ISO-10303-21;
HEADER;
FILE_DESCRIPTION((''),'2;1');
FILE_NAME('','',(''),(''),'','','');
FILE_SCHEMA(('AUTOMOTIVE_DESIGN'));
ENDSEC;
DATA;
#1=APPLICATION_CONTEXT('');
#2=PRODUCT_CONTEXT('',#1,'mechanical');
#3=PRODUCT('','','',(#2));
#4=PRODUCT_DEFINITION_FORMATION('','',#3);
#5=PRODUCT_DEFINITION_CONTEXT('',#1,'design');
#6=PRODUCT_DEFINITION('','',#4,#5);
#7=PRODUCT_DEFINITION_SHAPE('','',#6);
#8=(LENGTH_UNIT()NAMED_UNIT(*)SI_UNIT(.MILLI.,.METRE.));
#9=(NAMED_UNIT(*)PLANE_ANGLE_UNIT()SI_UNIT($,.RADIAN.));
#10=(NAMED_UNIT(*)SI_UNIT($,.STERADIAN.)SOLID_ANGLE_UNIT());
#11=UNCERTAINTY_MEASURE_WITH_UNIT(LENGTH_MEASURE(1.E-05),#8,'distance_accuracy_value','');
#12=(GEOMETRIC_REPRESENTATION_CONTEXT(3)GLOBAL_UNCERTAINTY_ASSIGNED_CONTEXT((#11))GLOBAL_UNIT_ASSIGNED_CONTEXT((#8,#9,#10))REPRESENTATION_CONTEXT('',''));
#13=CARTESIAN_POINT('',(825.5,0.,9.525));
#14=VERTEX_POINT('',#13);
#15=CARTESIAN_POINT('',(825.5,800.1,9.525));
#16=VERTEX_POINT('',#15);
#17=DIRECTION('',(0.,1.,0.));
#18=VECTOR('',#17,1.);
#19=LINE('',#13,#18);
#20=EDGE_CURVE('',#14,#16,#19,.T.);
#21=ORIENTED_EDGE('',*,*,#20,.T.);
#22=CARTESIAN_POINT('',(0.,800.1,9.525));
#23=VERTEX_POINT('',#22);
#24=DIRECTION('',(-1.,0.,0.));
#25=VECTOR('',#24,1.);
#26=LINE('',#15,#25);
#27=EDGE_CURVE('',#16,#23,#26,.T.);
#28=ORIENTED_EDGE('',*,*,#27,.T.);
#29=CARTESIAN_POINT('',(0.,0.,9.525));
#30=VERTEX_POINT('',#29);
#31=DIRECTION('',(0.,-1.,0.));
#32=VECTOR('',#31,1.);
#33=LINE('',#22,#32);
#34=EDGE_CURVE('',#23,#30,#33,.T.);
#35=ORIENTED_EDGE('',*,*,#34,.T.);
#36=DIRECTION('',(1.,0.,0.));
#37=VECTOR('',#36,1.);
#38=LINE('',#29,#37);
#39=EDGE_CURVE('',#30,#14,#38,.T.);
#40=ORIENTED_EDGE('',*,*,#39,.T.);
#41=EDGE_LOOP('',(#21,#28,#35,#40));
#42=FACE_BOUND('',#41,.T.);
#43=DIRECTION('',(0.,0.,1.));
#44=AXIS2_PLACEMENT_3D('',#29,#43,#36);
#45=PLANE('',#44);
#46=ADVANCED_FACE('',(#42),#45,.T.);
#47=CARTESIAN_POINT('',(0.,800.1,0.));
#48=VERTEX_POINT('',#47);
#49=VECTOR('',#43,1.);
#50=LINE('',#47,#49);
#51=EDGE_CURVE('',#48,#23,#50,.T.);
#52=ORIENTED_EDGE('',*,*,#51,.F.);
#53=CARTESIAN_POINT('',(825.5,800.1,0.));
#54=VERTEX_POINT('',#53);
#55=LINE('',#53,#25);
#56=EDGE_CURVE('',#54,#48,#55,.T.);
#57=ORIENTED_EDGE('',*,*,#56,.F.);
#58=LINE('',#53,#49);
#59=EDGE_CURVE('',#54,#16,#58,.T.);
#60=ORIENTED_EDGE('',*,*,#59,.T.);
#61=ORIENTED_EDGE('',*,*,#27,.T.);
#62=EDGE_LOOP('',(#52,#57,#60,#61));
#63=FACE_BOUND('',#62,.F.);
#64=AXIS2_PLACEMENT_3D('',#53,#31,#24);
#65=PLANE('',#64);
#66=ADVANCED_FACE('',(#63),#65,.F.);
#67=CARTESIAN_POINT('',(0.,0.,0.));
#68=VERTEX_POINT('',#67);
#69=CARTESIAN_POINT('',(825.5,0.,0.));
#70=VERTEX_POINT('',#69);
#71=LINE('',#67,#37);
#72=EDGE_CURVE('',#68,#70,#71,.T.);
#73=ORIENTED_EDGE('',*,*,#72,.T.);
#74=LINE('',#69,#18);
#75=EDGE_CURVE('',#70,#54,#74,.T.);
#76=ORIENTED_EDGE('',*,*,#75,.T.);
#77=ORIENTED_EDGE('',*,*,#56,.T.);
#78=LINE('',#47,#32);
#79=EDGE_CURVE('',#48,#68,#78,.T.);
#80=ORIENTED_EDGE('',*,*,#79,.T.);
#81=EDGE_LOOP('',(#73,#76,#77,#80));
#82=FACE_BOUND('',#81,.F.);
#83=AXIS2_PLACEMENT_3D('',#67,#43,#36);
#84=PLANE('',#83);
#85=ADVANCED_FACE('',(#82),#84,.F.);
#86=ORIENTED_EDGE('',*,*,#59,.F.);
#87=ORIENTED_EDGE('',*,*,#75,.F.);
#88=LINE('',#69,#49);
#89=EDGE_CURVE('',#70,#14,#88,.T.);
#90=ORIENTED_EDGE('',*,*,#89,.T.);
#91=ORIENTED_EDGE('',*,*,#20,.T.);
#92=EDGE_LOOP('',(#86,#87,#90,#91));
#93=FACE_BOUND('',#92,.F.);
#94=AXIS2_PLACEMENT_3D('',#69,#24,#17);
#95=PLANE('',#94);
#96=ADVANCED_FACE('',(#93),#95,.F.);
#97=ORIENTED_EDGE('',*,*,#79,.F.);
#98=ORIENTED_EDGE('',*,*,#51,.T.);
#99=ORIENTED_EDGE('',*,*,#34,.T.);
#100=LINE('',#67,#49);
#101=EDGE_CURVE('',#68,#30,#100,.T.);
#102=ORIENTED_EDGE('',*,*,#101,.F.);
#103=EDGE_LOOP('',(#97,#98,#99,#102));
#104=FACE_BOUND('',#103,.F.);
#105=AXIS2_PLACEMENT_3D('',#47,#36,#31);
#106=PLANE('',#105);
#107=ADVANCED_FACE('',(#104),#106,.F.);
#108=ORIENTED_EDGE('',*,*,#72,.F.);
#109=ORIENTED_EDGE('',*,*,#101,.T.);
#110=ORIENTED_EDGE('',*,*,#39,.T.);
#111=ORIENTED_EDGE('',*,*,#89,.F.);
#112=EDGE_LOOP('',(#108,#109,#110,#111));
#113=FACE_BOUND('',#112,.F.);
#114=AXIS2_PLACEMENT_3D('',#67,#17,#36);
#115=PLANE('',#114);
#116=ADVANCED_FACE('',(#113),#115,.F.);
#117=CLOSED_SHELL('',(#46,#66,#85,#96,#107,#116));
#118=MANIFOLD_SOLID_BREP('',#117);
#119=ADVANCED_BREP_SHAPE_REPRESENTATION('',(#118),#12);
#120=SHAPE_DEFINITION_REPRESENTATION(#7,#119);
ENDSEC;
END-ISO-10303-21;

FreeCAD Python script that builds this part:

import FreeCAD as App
import Part
import Sketcher
Q = App.Units.Quantity

doc = App.newDocument("Part")
body = doc.addObject("PartDesign::Body", "Body")

sketch1 = body.newObject("Sketcher::SketchObject", "Sketch")
sketch1.AttachmentSupport = (doc.getObject("XY_Plane"), [""])
sketch1.MapMode = "FlatFace"
sketch1.addGeometry([
    Part.LineSegment(App.Vector(0, 800, 0), App.Vector(0, 0, 0)),
    Part.LineSegment(App.Vector(0, 0, 0), App.Vector(826, 0, 0)),
    Part.LineSegment(App.Vector(826, 0, 0), App.Vector(826, 800, 0)),
    Part.LineSegment(App.Vector(826, 800, 0), App.Vector(0, 800, 0)),
], False)
sketch1.addConstraint([
    Sketcher.Constraint("Coincident", 0, 2, 1, 1),
    Sketcher.Constraint("Coincident", 1, 2, 2, 1),
    Sketcher.Constraint("Coincident", 2, 2, 3, 1),
    Sketcher.Constraint("Coincident", 3, 2, 0, 1),
    Sketcher.Constraint("Vertical", 0),
    Sketcher.Constraint("Horizontal", 1),
    Sketcher.Constraint("Vertical", 2),
    Sketcher.Constraint("Horizontal", 3),
    Sketcher.Constraint("Coincident", 0, 2, -1, 1),
    Sketcher.Constraint("DistanceX", 1, 1, 1, 2, Q("32.5 in")),
    Sketcher.Constraint("DistanceY", 0, 2, 0, 1, Q("31.5 in")),
])
pad1 = body.newObject("PartDesign::Pad", "Pad")
pad1.Profile = sketch1
pad1.Length = Q("0.375 in")

doc.recompute()
